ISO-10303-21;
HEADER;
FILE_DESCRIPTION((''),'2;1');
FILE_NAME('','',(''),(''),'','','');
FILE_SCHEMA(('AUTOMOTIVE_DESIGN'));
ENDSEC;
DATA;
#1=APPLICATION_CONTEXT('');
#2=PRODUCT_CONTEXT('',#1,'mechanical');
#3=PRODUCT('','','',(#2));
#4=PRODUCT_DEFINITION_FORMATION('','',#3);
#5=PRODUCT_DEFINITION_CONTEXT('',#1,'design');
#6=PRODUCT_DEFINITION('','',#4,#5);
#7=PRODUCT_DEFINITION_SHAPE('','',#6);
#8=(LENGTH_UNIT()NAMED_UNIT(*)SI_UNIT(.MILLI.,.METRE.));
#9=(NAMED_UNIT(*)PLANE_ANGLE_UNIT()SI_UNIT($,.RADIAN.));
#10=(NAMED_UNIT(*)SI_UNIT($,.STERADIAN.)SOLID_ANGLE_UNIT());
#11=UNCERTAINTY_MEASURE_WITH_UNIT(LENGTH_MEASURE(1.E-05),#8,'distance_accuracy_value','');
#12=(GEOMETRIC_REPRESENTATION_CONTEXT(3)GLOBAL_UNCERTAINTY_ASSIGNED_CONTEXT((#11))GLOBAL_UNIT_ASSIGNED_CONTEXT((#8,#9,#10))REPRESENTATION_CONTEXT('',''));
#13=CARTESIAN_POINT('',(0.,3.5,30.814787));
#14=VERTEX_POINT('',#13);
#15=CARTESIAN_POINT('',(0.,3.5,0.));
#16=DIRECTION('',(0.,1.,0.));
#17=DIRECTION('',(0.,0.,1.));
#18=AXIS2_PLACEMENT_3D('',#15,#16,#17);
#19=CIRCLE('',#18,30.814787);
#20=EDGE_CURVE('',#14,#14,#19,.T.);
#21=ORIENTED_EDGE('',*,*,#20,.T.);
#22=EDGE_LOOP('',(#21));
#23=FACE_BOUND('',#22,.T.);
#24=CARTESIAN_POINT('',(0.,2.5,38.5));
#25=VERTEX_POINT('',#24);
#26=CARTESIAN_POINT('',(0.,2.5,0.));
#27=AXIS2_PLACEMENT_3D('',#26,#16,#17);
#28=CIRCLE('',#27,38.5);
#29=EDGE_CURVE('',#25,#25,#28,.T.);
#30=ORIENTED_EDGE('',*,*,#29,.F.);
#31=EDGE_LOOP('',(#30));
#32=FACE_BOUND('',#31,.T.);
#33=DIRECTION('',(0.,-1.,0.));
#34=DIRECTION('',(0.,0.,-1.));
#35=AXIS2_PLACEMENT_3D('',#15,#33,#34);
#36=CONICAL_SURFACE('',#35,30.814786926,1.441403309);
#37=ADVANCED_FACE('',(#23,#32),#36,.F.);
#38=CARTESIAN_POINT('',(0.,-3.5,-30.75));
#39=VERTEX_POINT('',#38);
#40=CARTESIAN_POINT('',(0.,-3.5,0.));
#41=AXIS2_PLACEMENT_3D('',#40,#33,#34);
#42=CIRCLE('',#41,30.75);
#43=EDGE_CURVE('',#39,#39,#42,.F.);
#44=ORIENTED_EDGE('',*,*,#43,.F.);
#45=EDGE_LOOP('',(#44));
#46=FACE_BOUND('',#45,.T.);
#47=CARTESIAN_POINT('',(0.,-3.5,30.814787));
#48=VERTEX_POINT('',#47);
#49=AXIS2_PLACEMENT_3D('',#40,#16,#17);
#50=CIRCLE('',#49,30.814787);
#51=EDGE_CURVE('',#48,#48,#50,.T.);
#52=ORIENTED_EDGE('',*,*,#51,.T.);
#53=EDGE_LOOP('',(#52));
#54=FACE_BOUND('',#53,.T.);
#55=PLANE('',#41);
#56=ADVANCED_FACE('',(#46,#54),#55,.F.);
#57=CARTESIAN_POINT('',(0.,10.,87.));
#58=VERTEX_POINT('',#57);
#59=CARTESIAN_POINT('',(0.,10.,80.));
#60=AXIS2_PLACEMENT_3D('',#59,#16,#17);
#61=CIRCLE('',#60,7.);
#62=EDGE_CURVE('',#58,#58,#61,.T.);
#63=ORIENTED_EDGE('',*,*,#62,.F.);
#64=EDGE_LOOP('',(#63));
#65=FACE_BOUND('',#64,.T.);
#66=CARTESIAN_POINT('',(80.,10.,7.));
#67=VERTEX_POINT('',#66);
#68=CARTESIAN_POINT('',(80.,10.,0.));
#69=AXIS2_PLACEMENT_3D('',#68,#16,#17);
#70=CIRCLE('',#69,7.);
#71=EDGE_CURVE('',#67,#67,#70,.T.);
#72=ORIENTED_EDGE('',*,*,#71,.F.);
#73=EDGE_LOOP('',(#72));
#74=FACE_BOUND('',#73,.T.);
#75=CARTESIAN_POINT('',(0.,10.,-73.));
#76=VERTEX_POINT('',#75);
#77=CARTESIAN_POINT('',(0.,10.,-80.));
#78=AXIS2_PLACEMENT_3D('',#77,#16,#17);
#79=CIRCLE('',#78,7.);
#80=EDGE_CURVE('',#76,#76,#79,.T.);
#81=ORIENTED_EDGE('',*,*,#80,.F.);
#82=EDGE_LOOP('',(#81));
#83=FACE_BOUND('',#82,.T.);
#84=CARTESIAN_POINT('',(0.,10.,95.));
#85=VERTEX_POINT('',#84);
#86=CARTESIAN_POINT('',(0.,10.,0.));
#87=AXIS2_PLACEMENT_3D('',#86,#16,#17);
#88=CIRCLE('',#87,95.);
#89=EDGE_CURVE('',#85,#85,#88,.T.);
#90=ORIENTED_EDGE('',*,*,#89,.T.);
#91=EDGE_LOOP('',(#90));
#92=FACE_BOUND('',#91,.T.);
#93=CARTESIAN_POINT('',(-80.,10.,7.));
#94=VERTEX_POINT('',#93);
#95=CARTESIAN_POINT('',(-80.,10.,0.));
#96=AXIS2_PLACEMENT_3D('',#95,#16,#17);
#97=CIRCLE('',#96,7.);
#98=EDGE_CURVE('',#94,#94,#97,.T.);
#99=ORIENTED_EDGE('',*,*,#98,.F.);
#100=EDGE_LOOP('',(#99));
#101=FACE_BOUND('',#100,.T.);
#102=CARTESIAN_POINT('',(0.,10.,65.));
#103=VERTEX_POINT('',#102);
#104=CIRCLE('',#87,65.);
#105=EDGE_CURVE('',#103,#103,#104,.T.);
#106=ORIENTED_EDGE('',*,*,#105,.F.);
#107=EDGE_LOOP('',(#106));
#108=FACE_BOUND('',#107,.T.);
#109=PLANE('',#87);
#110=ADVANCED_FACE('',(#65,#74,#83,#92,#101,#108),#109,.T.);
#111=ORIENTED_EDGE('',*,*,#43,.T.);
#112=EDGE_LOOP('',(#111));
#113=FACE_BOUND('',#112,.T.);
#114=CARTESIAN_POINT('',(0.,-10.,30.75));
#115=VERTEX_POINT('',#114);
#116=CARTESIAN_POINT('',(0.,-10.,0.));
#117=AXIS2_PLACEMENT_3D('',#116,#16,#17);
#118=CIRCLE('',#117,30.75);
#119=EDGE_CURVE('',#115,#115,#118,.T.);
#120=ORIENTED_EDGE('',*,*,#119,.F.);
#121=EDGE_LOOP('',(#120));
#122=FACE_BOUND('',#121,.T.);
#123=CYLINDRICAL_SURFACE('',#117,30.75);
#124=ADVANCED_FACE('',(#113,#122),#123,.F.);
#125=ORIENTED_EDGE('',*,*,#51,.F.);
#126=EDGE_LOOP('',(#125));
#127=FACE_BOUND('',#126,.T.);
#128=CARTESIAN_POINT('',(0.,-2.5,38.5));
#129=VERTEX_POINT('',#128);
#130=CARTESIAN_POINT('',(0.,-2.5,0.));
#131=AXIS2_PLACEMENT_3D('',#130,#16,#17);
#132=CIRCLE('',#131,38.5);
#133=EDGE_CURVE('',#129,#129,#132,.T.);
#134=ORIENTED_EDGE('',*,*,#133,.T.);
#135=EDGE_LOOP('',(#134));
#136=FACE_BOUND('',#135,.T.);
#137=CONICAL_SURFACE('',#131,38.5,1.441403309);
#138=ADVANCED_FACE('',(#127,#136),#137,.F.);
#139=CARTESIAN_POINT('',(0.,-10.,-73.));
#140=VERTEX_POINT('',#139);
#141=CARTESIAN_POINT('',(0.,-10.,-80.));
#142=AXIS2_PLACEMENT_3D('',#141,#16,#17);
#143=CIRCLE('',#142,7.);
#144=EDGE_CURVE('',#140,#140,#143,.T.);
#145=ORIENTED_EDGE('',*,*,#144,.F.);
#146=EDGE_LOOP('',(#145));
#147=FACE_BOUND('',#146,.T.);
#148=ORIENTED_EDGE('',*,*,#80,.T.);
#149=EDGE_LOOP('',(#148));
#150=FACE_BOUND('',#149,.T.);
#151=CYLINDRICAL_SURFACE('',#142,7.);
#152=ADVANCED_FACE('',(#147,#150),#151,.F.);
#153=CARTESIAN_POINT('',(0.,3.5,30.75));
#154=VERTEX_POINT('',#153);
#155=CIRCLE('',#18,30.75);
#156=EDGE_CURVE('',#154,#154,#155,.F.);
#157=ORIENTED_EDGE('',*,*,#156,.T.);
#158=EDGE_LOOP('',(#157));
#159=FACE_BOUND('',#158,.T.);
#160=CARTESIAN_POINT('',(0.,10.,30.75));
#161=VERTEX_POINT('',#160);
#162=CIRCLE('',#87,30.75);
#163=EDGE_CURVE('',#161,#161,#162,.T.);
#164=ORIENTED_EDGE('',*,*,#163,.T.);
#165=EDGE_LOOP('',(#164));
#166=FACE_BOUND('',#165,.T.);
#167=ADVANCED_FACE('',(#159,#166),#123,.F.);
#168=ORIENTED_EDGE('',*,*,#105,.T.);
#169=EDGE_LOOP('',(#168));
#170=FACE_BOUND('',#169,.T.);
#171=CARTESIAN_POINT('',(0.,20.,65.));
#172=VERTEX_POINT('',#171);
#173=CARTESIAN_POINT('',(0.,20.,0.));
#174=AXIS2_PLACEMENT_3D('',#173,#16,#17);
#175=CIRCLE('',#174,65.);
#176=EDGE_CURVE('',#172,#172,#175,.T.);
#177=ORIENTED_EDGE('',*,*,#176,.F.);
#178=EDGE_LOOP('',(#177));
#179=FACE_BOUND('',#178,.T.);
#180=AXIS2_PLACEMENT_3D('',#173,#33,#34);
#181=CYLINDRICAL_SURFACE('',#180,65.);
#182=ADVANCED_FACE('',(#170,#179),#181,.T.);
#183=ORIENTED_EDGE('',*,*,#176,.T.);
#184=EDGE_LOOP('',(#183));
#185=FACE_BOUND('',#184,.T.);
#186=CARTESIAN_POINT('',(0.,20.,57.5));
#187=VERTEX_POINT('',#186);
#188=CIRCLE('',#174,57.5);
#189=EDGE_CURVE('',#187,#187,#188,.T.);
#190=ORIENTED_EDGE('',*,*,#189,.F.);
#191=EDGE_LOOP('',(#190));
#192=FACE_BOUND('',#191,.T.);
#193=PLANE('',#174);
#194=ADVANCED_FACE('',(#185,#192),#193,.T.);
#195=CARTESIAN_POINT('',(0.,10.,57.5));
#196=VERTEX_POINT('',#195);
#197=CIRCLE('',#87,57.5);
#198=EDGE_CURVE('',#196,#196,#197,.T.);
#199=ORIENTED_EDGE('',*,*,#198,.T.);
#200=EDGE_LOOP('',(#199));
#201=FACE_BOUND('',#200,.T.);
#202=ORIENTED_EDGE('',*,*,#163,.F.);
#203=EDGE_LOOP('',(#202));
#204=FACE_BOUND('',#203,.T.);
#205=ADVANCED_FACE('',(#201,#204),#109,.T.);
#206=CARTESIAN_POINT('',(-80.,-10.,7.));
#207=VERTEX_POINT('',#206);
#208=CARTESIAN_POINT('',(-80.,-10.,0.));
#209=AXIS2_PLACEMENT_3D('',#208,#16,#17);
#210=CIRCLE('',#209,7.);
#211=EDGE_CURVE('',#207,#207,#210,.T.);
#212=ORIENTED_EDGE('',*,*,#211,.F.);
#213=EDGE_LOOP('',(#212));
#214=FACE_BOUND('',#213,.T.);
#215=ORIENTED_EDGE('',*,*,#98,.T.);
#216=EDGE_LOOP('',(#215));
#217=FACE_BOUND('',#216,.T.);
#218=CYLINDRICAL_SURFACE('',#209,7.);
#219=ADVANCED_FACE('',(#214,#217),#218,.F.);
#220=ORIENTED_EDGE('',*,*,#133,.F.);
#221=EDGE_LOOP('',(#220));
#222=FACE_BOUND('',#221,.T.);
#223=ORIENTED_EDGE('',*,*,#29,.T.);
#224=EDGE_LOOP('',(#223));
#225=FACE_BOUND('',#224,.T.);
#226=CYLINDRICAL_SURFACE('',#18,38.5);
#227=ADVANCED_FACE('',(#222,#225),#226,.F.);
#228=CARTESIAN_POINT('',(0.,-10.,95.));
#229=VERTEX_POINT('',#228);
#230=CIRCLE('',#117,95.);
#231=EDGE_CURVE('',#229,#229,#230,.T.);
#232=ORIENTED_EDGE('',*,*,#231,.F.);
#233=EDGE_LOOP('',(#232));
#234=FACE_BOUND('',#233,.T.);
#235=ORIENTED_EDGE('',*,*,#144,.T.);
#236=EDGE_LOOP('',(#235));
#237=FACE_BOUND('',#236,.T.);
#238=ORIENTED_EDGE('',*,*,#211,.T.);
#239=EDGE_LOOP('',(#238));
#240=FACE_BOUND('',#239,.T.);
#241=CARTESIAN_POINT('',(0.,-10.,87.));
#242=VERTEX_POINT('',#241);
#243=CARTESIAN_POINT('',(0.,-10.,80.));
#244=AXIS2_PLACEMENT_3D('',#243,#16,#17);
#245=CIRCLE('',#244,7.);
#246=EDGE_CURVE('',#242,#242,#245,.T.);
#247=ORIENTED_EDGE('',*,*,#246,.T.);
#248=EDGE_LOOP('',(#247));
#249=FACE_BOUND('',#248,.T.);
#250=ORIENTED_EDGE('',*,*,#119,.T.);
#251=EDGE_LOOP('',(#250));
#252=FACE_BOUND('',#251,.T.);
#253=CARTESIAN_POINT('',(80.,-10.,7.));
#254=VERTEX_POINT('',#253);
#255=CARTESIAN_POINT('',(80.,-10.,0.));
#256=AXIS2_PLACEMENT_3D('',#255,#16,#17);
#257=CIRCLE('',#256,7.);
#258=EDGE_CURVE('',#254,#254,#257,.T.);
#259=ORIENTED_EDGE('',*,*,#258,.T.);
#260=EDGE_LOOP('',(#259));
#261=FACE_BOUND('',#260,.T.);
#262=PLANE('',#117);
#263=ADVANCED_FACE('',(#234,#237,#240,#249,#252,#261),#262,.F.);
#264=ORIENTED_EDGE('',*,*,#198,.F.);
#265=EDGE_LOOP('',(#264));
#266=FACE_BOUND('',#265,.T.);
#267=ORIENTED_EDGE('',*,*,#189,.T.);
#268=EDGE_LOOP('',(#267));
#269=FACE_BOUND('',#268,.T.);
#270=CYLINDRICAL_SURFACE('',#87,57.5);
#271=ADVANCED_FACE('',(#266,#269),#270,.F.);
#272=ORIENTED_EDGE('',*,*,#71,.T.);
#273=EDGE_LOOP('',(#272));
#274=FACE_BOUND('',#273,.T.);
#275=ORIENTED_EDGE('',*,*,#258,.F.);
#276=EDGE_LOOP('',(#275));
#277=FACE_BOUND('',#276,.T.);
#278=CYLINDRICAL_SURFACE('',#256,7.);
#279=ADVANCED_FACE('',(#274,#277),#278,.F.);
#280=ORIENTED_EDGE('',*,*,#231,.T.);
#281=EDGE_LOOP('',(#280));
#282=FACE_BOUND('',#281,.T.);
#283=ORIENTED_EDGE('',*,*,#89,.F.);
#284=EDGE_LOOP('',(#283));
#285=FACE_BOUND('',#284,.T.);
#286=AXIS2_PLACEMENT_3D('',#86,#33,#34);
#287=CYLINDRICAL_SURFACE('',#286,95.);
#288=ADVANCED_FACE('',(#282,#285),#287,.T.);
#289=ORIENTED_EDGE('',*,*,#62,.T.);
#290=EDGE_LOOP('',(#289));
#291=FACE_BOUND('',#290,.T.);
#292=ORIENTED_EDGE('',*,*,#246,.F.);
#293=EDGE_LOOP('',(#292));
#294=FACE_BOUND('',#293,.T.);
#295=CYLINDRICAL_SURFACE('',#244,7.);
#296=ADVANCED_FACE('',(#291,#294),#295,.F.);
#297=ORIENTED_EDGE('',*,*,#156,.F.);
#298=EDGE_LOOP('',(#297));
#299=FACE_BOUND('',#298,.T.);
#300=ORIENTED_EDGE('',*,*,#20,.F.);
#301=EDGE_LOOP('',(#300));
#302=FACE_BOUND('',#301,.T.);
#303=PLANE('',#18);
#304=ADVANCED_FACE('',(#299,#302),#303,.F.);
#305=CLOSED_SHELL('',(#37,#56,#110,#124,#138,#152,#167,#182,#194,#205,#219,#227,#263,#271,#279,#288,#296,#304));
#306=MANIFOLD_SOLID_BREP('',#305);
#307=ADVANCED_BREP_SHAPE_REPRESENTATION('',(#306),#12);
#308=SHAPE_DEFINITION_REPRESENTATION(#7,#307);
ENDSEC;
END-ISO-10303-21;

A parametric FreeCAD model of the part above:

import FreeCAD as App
import Part
import Sketcher

V = App.Vector


def add_polygon(sketch, points):
    """Adds a closed chain of lines whose ends are joined by coincident constraints."""
    first, n = sketch.GeometryCount, len(points)
    for a, b in zip(points, points[1:] + points[:1]):
        sketch.addGeometry(Part.LineSegment(App.Vector(*a, 0), App.Vector(*b, 0)), False)
    for i in range(n):
        sketch.addConstraint(Sketcher.Constraint("Coincident", first + i, 2, first + (i + 1) % n, 1))

doc = App.newDocument("Part")
params = doc.addObject("Spreadsheet::Sheet", "Params")
for row, (alias, value) in enumerate([
    ("sketch1_diameter", "190 mm"),
    ("pad1_length", "20 mm"),
    ("sketch2_diameter", "130 mm"),
    ("pad2_length", "10 mm"),
    ("sketch3_diameter", "115 mm"),
    ("pocket1_length", "10 mm"),
    ("sketch4_diameter", "14 mm"),
    ("sketch5_diameter", "61.5 mm"),
    ("sketch6_width", "5 mm"),
    ("sketch6_width2", "7 mm"),
    ("sketch6_length", "7.75 mm"),
    ("groove_angle", "360 deg"),
], start=1):
    params.set(f"A{row}", alias)
    params.set(f"B{row}", "=" + value)
    params.setAlias(f"B{row}", alias)

body = doc.addObject("PartDesign::Body", "Body")

# Sketch on XZ plane
sketch1 = body.newObject("Sketcher::SketchObject", "Sketch")
sketch1.AttachmentSupport = (doc.getObject("XZ_Plane"), [""])
sketch1.MapMode = "FlatFace"
sketch1.addGeometry(Part.Circle(V(0, 0, 0), V(0, 0, 1), 95), False)
sketch1.addConstraint([
    Sketcher.Constraint("Coincident", 0, 3, -1, 1),
    Sketcher.Constraint("Diameter", 0, 190.0),
])
sketch1.setExpression("Constraints[1]", "Params.sketch1_diameter")
pad1 = body.newObject("PartDesign::Pad", "Pad")
pad1.Profile = sketch1
pad1.setExpression("Length", "Params.pad1_length")
pad1.Midplane = True

# Sketch on XZ plane
sketch2 = body.newObject("Sketcher::SketchObject", "Sketch001")
sketch2.AttachmentSupport = (doc.getObject("XZ_Plane"), [""])
sketch2.MapMode = "FlatFace"
sketch2.AttachmentOffset = App.Placement(V(0, 0, -10), App.Rotation())
sketch2.addGeometry(Part.Circle(V(0, 0, 0), V(0, 0, 1), 65), False)
sketch2.addConstraint([
    Sketcher.Constraint("Coincident", 0, 3, -1, 1),
    Sketcher.Constraint("Diameter", 0, 130.0),
])
sketch2.setExpression("Constraints[1]", "Params.sketch2_diameter")
pad2 = body.newObject("PartDesign::Pad", "Pad001")
pad2.Profile = sketch2
pad2.setExpression("Length", "Params.pad2_length")
pad2.Reversed = True

# Sketch on XZ plane
sketch3 = body.newObject("Sketcher::SketchObject", "Sketch002")
sketch3.AttachmentSupport = (doc.getObject("XZ_Plane"), [""])
sketch3.MapMode = "FlatFace"
sketch3.AttachmentOffset = App.Placement(V(0, 0, -20), App.Rotation())
sketch3.addGeometry(Part.Circle(V(0, 0, 0), V(0, 0, 1), 58), False)
sketch3.addConstraint([
    Sketcher.Constraint("Coincident", 0, 3, -1, 1),
    Sketcher.Constraint("Diameter", 0, 115.0),
])
sketch3.setExpression("Constraints[1]", "Params.sketch3_diameter")
pocket1 = body.newObject("PartDesign::Pocket", "Pocket")
pocket1.Profile = sketch3
pocket1.setExpression("Length", "Params.pocket1_length")
pocket1.Reversed = True

# Sketch on XZ plane
sketch4 = body.newObject("Sketcher::SketchObject", "Sketch003")
sketch4.AttachmentSupport = (doc.getObject("XZ_Plane"), [""])
sketch4.MapMode = "FlatFace"
sketch4.AttachmentOffset = App.Placement(V(0, 0, -10), App.Rotation())
sketch4.addGeometry([
    Part.Circle(V(0, -80, 0), V(0, 0, 1), 7),
    Part.Circle(V(80, 0, 0), V(0, 0, 1), 7),
    Part.Circle(V(0, 80, 0), V(0, 0, 1), 7),
    Part.Circle(V(-80, 0, 0), V(0, 0, 1), 7),
], False)
sketch4.addConstraint([
    Sketcher.Constraint("Equal", 0, 1),
    Sketcher.Constraint("Equal", 1, 2),
    Sketcher.Constraint("Equal", 2, 3),
    Sketcher.Constraint("Symmetric", 0, 3, 2, 3, -1, 1),
    Sketcher.Constraint("Symmetric", 1, 3, 3, 3, -1, 1),
    Sketcher.Constraint("PointOnObject", 0, 3, -2),
    Sketcher.Constraint("PointOnObject", 1, 3, -1),
    Sketcher.Constraint("Diameter", 0, 14.0),
    Sketcher.Constraint("DistanceY", 0, 3, -1, 1, 80.0),
    Sketcher.Constraint("DistanceX", -1, 1, 1, 3, 80.0),
])
sketch4.setExpression("Constraints[7]", "Params.sketch4_diameter")
pocket2 = body.newObject("PartDesign::Pocket", "Pocket001")
pocket2.Profile = sketch4
pocket2.Type = "ThroughAll"
pocket2.Reversed = True

# Sketch on XZ plane
sketch5 = body.newObject("Sketcher::SketchObject", "Sketch004")
sketch5.AttachmentSupport = (doc.getObject("XZ_Plane"), [""])
sketch5.MapMode = "FlatFace"
sketch5.AttachmentOffset = App.Placement(V(0, 0, -10), App.Rotation())
sketch5.addGeometry(Part.Circle(V(0, 0, 0), V(0, 0, 1), 31), False)
sketch5.addConstraint([
    Sketcher.Constraint("Coincident", 0, 3, -1, 1),
    Sketcher.Constraint("Diameter", 0, 61.5),
])
sketch5.setExpression("Constraints[1]", "Params.sketch5_diameter")
pocket3 = body.newObject("PartDesign::Pocket", "Pocket002")
pocket3.Profile = sketch5
pocket3.Type = "ThroughAll"
pocket3.Reversed = True

# Sketch on YZ plane
sketch6 = body.newObject("Sketcher::SketchObject", "Sketch005")
sketch6.AttachmentSupport = (doc.getObject("YZ_Plane"), [""])
sketch6.MapMode = "FlatFace"
add_polygon(sketch6, [(4, 0), (4, 31), (2, 38), (-2, 38), (-4, 31), (-4, 0)])  # lines 0-5
sketch6.addConstraint([
    Sketcher.Constraint("Vertical", 0),
    Sketcher.Constraint("Horizontal", 2),
    Sketcher.Constraint("Vertical", 4),
    Sketcher.Constraint("Horizontal", 5),
    Sketcher.Constraint("Symmetric", 4, 2, 5, 2, -1, 1),
    Sketcher.Constraint("Horizontal", 0, 2, 3, 2),
    Sketcher.Constraint("Equal", 1, 3),
    Sketcher.Constraint("DistanceX", 2, 2, 2, 1, 5.0),
    Sketcher.Constraint("DistanceX", 5, 1, 5, 2, 7.0),
    Sketcher.Constraint("DistanceY", -1, 1, 1, 2, 38.5),
    Sketcher.Constraint("Distance", 1, 7.75),
])
sketch6.setExpression("Constraints[13]", "Params.sketch6_width")
sketch6.setExpression("Constraints[14]", "Params.sketch6_width2")
sketch6.setExpression("Constraints[16]", "Params.sketch6_length")
groove = body.newObject("PartDesign::Groove", "Groove")
groove.Profile = sketch6
groove.ReferenceAxis = (sketch6, ["H_Axis"])
groove.setExpression("Angle", "Params.groove_angle")

doc.recompute()
